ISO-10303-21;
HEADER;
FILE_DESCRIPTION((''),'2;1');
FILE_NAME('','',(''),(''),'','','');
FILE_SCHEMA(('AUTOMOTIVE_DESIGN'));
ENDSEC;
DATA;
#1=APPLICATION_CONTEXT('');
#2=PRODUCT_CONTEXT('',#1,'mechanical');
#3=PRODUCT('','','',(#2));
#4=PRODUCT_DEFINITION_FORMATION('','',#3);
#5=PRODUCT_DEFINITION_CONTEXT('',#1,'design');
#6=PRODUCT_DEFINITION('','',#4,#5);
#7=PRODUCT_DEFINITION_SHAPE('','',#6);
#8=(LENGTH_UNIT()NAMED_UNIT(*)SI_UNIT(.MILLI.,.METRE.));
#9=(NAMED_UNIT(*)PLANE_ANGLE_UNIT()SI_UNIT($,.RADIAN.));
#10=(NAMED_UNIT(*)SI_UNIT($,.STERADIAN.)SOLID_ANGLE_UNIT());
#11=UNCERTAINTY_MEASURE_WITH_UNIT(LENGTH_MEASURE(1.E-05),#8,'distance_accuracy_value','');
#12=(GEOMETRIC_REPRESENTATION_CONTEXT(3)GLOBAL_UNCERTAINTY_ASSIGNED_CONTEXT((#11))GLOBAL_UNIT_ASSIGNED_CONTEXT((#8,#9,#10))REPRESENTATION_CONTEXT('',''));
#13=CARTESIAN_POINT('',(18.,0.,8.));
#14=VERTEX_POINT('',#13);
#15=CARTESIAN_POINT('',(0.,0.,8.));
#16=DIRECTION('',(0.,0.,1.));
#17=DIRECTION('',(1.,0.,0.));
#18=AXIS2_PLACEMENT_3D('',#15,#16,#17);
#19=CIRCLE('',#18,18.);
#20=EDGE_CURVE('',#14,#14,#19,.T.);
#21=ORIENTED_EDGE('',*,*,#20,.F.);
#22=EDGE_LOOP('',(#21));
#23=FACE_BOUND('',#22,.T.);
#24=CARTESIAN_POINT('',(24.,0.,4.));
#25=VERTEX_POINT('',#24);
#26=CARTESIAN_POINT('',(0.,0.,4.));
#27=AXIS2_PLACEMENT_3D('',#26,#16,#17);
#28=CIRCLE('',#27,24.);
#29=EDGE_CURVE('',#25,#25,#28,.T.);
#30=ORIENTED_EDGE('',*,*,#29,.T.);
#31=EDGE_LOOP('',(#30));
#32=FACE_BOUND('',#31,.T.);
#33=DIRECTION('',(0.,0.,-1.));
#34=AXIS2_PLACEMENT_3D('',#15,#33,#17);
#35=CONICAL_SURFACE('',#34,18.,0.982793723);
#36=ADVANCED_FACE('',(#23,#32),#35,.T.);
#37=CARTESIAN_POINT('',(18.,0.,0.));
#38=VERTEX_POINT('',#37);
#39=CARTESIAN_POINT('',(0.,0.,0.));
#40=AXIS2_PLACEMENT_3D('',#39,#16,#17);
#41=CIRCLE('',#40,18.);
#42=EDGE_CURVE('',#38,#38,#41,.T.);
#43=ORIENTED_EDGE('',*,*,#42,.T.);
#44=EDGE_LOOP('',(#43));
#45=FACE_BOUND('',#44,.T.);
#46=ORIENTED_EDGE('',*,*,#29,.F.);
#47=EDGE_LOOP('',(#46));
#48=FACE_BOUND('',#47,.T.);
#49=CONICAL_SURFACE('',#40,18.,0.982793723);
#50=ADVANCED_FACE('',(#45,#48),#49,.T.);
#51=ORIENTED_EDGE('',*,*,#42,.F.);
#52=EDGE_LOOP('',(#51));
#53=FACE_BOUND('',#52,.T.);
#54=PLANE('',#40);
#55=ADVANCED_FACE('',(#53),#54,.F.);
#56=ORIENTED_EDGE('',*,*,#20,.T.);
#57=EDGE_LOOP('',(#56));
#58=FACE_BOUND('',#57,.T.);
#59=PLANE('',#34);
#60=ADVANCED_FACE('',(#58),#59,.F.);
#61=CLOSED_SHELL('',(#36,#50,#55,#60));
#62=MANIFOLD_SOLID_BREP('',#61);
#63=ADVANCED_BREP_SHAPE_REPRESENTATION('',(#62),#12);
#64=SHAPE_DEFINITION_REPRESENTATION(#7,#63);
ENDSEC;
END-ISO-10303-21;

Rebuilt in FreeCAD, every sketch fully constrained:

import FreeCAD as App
import Part
import Sketcher
from FreeCAD import Vector

doc = App.newDocument("Part")
params = doc.addObject("Spreadsheet::Sheet", "Params")
for row, (alias, value) in enumerate([
    ("sketch1_diameter", "48 mm"),
    ("sketch2_diameter", "36 mm"),
], start=1):
    params.set(f"A{row}", alias)
    params.set(f"B{row}", "=" + value)
    params.setAlias(f"B{row}", alias)

body = doc.addObject("PartDesign::Body", "Body")

sketch1 = body.newObject("Sketcher::SketchObject", "Sketch")
sketch1.AttachmentSupport = (doc.getObject("XY_Plane"), [""])
sketch1.MapMode = "FlatFace"
sketch1.AttachmentOffset = App.Placement(Vector(0, 0, 4), App.Rotation())
sketch1.addGeometry(Part.Circle(Vector(0, 0, 0), Vector(0, 0, 1), 24), False)
sketch1.addConstraint(Sketcher.Constraint("Coincident", 0, 3, -1, 1))
sketch1.addConstraint(Sketcher.Constraint("Diameter", 0, 48.0))
sketch1.setExpression("Constraints[1]", "Params.sketch1_diameter")

sketch2 = body.newObject("Sketcher::SketchObject", "Sketch001")
sketch2.AttachmentSupport = (doc.getObject("XY_Plane"), [""])
sketch2.MapMode = "FlatFace"
sketch2.addGeometry(Part.Circle(Vector(0, 0, 0), Vector(0, 0, 1), 18), False)
sketch2.addConstraint(Sketcher.Constraint("Coincident", 0, 3, -1, 1))
sketch2.addConstraint(Sketcher.Constraint("Diameter", 0, 36.0))
sketch2.setExpression("Constraints[1]", "Params.sketch2_diameter")

additiveloft = body.newObject("PartDesign::AdditiveLoft", "AdditiveLoft")
additiveloft.Profile = sketch1
additiveloft.Sections = [sketch2]
doc.recompute()

datumplane = body.newObject("PartDesign::Plane", "DatumPlane")
datumplane.AttachmentSupport = (doc.getObject("XY_Plane"), [""])
datumplane.MapMode = "FlatFace"
datumplane.AttachmentOffset = App.Placement(Vector(0, 0, 4), App.Rotation())
mirrored = body.newObject("PartDesign::Mirrored", "Mirrored")
mirrored.Originals = [additiveloft]
mirrored.MirrorPlane = (datumplane, [""])
body.Tip = mirrored

doc.recompute()
